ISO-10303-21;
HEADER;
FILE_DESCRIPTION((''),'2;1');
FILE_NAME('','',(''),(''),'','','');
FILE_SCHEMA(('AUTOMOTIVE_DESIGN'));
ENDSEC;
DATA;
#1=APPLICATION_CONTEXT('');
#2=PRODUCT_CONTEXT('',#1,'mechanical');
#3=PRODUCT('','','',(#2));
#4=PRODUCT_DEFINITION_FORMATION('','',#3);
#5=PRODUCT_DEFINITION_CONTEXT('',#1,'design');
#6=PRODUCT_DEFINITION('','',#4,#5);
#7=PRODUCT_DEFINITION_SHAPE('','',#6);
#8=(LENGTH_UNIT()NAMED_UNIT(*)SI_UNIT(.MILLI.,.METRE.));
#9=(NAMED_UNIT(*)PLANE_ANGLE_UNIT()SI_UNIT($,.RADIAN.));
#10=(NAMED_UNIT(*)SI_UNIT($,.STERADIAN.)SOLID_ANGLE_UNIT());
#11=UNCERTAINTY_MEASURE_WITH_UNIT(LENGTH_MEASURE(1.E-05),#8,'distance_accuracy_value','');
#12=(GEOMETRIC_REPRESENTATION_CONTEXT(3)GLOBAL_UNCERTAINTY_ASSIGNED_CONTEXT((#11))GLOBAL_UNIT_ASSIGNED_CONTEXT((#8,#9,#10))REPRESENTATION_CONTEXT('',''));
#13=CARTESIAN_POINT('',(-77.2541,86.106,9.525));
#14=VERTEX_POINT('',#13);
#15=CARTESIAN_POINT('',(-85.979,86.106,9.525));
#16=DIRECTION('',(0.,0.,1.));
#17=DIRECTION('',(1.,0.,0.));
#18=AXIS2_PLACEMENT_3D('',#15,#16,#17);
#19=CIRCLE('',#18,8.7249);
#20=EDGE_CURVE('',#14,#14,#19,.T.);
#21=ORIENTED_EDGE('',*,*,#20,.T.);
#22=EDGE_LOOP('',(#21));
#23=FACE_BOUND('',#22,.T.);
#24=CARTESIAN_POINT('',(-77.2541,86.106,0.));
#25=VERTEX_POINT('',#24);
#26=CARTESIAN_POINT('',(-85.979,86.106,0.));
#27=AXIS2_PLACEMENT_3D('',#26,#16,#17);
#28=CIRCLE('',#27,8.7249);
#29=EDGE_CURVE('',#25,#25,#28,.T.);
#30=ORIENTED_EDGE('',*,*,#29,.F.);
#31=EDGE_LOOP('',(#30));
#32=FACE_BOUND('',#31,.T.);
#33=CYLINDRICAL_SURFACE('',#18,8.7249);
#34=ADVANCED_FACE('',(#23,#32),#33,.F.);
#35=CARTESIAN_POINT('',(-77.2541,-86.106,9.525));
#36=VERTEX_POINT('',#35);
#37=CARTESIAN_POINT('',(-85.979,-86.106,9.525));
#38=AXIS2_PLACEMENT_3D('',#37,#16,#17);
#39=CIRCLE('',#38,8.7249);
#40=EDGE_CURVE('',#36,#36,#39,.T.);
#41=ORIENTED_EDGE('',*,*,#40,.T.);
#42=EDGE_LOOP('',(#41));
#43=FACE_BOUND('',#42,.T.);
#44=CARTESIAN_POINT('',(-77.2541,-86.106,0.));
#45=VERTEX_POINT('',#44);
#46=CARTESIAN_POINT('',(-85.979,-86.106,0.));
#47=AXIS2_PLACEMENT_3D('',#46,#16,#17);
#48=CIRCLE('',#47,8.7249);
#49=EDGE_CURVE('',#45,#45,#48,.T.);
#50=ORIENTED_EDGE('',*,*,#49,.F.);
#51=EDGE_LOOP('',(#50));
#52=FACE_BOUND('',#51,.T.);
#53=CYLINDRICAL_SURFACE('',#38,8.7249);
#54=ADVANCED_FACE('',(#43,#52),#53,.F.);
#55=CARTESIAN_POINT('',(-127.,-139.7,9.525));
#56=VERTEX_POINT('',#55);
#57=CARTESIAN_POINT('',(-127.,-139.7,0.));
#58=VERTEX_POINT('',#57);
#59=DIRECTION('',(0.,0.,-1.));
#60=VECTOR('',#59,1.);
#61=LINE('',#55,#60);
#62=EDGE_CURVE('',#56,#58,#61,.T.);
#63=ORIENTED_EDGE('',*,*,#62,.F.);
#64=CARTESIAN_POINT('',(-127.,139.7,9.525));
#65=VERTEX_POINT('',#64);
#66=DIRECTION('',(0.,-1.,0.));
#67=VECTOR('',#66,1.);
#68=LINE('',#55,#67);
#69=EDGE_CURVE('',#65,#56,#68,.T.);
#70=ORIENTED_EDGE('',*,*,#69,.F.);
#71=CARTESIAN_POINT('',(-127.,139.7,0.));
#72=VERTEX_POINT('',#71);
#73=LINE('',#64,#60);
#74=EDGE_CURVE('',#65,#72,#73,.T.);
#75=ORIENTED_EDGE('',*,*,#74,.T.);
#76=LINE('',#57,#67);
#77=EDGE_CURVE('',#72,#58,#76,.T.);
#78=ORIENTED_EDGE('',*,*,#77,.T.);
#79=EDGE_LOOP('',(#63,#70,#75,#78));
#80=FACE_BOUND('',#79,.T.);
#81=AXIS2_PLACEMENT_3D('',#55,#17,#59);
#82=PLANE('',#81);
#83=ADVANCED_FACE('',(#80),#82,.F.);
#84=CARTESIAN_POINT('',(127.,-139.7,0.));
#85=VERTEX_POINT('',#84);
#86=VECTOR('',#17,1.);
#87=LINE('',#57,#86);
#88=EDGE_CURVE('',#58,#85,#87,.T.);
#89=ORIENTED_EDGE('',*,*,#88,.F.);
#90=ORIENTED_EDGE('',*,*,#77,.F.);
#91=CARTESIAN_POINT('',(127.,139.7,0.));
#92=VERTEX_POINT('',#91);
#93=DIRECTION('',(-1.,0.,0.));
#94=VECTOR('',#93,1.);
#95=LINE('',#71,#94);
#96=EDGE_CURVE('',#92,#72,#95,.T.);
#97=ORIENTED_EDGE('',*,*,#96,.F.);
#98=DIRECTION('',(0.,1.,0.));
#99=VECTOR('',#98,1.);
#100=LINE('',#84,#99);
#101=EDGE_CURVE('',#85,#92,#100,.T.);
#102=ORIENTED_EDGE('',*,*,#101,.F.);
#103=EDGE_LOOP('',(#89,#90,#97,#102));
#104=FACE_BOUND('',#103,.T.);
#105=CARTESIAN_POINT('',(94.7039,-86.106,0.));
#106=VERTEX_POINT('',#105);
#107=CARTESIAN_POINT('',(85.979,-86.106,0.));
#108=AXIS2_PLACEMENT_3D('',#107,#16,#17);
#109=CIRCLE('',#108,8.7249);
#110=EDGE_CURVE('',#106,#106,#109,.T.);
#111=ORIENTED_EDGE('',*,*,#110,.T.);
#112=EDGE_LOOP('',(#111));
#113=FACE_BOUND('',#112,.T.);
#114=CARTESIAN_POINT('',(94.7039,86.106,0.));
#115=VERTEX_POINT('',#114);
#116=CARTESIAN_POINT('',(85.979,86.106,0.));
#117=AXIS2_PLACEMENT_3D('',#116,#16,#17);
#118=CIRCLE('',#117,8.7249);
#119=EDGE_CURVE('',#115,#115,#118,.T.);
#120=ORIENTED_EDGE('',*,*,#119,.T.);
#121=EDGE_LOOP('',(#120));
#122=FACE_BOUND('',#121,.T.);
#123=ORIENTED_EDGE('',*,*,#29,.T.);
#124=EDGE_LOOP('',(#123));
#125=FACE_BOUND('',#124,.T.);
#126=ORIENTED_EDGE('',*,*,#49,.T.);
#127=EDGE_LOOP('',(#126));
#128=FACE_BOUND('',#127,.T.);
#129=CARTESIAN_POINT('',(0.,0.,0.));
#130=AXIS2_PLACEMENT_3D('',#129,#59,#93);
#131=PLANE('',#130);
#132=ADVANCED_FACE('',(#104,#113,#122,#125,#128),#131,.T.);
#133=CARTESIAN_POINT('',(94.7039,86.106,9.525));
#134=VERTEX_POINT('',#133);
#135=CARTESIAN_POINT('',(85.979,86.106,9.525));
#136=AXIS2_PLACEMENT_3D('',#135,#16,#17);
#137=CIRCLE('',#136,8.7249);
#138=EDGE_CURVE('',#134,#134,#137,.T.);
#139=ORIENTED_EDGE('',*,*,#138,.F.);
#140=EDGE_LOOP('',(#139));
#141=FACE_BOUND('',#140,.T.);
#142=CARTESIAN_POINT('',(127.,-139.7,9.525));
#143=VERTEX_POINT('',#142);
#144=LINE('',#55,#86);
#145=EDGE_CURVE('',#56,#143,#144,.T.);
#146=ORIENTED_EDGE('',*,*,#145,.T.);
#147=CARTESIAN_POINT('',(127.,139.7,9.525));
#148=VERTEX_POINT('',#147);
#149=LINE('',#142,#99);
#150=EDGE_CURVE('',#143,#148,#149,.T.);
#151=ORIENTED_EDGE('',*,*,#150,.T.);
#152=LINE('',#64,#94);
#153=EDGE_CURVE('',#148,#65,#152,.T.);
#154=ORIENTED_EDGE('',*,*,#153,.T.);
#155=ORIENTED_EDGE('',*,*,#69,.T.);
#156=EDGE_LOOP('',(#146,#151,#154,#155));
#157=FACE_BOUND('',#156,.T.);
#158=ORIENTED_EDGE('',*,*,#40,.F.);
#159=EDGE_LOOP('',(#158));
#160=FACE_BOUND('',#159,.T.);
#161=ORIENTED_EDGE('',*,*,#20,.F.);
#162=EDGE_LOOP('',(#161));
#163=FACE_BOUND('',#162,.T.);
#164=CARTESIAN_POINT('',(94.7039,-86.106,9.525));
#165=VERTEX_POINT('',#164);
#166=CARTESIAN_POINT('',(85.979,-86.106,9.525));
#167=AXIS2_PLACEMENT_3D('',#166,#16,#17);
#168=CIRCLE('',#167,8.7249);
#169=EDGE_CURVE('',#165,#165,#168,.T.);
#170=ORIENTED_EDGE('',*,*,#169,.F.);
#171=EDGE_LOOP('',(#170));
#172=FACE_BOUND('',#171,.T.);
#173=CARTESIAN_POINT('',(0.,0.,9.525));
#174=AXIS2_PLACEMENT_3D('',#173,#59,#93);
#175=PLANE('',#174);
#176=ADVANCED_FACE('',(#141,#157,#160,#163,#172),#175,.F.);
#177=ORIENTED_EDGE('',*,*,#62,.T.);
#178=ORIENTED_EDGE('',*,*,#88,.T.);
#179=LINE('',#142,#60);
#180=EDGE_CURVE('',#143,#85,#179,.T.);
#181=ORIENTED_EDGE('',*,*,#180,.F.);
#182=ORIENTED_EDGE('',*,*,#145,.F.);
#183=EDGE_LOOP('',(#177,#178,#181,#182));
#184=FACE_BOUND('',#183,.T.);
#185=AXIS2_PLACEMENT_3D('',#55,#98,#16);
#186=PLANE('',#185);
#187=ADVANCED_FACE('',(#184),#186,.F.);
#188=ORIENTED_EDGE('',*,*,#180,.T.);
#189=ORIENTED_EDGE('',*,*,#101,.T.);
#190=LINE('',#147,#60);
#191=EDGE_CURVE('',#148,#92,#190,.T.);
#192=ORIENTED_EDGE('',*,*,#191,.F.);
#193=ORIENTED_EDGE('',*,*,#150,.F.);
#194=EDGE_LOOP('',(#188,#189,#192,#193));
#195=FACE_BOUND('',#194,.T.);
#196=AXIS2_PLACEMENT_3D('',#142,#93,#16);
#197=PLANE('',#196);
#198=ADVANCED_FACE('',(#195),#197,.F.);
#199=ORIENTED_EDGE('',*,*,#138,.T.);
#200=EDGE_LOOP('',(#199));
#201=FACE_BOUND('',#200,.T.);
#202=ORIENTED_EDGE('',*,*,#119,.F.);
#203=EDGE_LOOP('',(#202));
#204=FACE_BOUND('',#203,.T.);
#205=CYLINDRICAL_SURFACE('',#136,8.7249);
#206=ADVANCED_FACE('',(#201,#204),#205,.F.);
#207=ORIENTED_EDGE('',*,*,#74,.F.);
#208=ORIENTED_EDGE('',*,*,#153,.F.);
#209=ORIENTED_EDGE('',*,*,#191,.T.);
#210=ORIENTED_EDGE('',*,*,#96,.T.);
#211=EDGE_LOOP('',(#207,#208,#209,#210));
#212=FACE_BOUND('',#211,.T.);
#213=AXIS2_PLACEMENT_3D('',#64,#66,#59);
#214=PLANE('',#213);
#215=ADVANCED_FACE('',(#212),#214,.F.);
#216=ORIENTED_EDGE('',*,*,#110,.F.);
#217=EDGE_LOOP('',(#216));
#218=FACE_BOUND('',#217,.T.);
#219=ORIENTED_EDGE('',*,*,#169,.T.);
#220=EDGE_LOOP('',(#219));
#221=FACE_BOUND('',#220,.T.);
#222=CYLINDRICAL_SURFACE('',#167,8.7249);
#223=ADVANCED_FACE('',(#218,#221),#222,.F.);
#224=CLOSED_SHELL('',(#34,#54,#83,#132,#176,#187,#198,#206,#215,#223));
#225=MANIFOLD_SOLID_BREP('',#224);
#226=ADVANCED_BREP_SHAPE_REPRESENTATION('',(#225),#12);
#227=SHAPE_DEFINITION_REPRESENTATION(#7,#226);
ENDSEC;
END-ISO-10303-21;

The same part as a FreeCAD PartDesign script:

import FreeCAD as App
import Part
import Sketcher

V = App.Vector
Q = App.Units.Quantity

doc = App.newDocument("Part")
body = doc.addObject("PartDesign::Body", "Body")

# Sketch on XY plane
sketch1 = body.newObject("Sketcher::SketchObject", "Sketch")
sketch1.AttachmentSupport = (doc.getObject("XY_Plane"), [""])
sketch1.MapMode = "FlatFace"
sketch1.addGeometry(Part.LineSegment(V(-127, 140, 0), V(-127, -140, 0)), False)
sketch1.addGeometry(Part.LineSegment(V(-127, -140, 0), V(127, -140, 0)), False)
sketch1.addGeometry(Part.LineSegment(V(127, -140, 0), V(127, 140, 0)), False)
sketch1.addGeometry(Part.LineSegment(V(127, 140, 0), V(-127, 140, 0)), False)
sketch1.addConstraint(Sketcher.Constraint("Coincident", 0, 2, 1, 1))
sketch1.addConstraint(Sketcher.Constraint("Coincident", 1, 2, 2, 1))
sketch1.addConstraint(Sketcher.Constraint("Coincident", 2, 2, 3, 1))
sketch1.addConstraint(Sketcher.Constraint("Coincident", 3, 2, 0, 1))
sketch1.addConstraint(Sketcher.Constraint("Vertical", 0))
sketch1.addConstraint(Sketcher.Constraint("Horizontal", 1))
sketch1.addConstraint(Sketcher.Constraint("Vertical", 2))
sketch1.addConstraint(Sketcher.Constraint("Horizontal", 3))
sketch1.addConstraint(Sketcher.Constraint("Symmetric", 0, 2, 2, 2, -1, 1))
sketch1.addConstraint(Sketcher.Constraint("DistanceX", 1, 1, 1, 2, Q("10 in")))
sketch1.addConstraint(Sketcher.Constraint("DistanceY", 0, 2, 0, 1, Q("11 in")))
pad1 = body.newObject("PartDesign::Pad", "Pad")
pad1.Profile = sketch1
pad1.Length = Q("0.375 in")

# Sketch on XY plane
sketch2 = body.newObject("Sketcher::SketchObject", "Sketch001")
sketch2.AttachmentSupport = (doc.getObject("XY_Plane"), [""])
sketch2.MapMode = "FlatFace"
sketch2.AttachmentOffset = App.Placement(V(0, 0, 0.375 * 25.4), App.Rotation())
sketch2.addGeometry(Part.Circle(V(-86, 86, 0), V(0, 0, 1), 9), False)
sketch2.addGeometry(Part.Circle(V(-86, -86, 0), V(0, 0, 1), 9), False)
sketch2.addGeometry(Part.Circle(V(86, -86, 0), V(0, 0, 1), 9), False)
sketch2.addGeometry(Part.Circle(V(86, 86, 0), V(0, 0, 1), 9), False)
sketch2.addConstraint(Sketcher.Constraint("Equal", 0, 1))
sketch2.addConstraint(Sketcher.Constraint("Equal", 1, 2))
sketch2.addConstraint(Sketcher.Constraint("Equal", 2, 3))
sketch2.addConstraint(Sketcher.Constraint("Symmetric", 0, 3, 2, 3, -1, 1))
sketch2.addConstraint(Sketcher.Constraint("Symmetric", 1, 3, 3, 3, -1, 1))
sketch2.addConstraint(Sketcher.Constraint("Symmetric", 1, 3, 2, 3, -2))
sketch2.addConstraint(Sketcher.Constraint("Diameter", 0, Q("0.687 in")))
sketch2.addConstraint(Sketcher.Constraint("DistanceY", -1, 1, 0, 3, Q("3.39 in")))
sketch2.addConstraint(Sketcher.Constraint("DistanceX", 1, 3, 2, 3, Q("6.77 in")))
doc.recompute()
hole = body.newObject("PartDesign::Hole", "Hole")
hole.Profile = sketch2
hole.ThreadType = "None"
hole.Diameter = Q("0.687 in")
hole.DepthType = "ThroughAll"

doc.recompute()
